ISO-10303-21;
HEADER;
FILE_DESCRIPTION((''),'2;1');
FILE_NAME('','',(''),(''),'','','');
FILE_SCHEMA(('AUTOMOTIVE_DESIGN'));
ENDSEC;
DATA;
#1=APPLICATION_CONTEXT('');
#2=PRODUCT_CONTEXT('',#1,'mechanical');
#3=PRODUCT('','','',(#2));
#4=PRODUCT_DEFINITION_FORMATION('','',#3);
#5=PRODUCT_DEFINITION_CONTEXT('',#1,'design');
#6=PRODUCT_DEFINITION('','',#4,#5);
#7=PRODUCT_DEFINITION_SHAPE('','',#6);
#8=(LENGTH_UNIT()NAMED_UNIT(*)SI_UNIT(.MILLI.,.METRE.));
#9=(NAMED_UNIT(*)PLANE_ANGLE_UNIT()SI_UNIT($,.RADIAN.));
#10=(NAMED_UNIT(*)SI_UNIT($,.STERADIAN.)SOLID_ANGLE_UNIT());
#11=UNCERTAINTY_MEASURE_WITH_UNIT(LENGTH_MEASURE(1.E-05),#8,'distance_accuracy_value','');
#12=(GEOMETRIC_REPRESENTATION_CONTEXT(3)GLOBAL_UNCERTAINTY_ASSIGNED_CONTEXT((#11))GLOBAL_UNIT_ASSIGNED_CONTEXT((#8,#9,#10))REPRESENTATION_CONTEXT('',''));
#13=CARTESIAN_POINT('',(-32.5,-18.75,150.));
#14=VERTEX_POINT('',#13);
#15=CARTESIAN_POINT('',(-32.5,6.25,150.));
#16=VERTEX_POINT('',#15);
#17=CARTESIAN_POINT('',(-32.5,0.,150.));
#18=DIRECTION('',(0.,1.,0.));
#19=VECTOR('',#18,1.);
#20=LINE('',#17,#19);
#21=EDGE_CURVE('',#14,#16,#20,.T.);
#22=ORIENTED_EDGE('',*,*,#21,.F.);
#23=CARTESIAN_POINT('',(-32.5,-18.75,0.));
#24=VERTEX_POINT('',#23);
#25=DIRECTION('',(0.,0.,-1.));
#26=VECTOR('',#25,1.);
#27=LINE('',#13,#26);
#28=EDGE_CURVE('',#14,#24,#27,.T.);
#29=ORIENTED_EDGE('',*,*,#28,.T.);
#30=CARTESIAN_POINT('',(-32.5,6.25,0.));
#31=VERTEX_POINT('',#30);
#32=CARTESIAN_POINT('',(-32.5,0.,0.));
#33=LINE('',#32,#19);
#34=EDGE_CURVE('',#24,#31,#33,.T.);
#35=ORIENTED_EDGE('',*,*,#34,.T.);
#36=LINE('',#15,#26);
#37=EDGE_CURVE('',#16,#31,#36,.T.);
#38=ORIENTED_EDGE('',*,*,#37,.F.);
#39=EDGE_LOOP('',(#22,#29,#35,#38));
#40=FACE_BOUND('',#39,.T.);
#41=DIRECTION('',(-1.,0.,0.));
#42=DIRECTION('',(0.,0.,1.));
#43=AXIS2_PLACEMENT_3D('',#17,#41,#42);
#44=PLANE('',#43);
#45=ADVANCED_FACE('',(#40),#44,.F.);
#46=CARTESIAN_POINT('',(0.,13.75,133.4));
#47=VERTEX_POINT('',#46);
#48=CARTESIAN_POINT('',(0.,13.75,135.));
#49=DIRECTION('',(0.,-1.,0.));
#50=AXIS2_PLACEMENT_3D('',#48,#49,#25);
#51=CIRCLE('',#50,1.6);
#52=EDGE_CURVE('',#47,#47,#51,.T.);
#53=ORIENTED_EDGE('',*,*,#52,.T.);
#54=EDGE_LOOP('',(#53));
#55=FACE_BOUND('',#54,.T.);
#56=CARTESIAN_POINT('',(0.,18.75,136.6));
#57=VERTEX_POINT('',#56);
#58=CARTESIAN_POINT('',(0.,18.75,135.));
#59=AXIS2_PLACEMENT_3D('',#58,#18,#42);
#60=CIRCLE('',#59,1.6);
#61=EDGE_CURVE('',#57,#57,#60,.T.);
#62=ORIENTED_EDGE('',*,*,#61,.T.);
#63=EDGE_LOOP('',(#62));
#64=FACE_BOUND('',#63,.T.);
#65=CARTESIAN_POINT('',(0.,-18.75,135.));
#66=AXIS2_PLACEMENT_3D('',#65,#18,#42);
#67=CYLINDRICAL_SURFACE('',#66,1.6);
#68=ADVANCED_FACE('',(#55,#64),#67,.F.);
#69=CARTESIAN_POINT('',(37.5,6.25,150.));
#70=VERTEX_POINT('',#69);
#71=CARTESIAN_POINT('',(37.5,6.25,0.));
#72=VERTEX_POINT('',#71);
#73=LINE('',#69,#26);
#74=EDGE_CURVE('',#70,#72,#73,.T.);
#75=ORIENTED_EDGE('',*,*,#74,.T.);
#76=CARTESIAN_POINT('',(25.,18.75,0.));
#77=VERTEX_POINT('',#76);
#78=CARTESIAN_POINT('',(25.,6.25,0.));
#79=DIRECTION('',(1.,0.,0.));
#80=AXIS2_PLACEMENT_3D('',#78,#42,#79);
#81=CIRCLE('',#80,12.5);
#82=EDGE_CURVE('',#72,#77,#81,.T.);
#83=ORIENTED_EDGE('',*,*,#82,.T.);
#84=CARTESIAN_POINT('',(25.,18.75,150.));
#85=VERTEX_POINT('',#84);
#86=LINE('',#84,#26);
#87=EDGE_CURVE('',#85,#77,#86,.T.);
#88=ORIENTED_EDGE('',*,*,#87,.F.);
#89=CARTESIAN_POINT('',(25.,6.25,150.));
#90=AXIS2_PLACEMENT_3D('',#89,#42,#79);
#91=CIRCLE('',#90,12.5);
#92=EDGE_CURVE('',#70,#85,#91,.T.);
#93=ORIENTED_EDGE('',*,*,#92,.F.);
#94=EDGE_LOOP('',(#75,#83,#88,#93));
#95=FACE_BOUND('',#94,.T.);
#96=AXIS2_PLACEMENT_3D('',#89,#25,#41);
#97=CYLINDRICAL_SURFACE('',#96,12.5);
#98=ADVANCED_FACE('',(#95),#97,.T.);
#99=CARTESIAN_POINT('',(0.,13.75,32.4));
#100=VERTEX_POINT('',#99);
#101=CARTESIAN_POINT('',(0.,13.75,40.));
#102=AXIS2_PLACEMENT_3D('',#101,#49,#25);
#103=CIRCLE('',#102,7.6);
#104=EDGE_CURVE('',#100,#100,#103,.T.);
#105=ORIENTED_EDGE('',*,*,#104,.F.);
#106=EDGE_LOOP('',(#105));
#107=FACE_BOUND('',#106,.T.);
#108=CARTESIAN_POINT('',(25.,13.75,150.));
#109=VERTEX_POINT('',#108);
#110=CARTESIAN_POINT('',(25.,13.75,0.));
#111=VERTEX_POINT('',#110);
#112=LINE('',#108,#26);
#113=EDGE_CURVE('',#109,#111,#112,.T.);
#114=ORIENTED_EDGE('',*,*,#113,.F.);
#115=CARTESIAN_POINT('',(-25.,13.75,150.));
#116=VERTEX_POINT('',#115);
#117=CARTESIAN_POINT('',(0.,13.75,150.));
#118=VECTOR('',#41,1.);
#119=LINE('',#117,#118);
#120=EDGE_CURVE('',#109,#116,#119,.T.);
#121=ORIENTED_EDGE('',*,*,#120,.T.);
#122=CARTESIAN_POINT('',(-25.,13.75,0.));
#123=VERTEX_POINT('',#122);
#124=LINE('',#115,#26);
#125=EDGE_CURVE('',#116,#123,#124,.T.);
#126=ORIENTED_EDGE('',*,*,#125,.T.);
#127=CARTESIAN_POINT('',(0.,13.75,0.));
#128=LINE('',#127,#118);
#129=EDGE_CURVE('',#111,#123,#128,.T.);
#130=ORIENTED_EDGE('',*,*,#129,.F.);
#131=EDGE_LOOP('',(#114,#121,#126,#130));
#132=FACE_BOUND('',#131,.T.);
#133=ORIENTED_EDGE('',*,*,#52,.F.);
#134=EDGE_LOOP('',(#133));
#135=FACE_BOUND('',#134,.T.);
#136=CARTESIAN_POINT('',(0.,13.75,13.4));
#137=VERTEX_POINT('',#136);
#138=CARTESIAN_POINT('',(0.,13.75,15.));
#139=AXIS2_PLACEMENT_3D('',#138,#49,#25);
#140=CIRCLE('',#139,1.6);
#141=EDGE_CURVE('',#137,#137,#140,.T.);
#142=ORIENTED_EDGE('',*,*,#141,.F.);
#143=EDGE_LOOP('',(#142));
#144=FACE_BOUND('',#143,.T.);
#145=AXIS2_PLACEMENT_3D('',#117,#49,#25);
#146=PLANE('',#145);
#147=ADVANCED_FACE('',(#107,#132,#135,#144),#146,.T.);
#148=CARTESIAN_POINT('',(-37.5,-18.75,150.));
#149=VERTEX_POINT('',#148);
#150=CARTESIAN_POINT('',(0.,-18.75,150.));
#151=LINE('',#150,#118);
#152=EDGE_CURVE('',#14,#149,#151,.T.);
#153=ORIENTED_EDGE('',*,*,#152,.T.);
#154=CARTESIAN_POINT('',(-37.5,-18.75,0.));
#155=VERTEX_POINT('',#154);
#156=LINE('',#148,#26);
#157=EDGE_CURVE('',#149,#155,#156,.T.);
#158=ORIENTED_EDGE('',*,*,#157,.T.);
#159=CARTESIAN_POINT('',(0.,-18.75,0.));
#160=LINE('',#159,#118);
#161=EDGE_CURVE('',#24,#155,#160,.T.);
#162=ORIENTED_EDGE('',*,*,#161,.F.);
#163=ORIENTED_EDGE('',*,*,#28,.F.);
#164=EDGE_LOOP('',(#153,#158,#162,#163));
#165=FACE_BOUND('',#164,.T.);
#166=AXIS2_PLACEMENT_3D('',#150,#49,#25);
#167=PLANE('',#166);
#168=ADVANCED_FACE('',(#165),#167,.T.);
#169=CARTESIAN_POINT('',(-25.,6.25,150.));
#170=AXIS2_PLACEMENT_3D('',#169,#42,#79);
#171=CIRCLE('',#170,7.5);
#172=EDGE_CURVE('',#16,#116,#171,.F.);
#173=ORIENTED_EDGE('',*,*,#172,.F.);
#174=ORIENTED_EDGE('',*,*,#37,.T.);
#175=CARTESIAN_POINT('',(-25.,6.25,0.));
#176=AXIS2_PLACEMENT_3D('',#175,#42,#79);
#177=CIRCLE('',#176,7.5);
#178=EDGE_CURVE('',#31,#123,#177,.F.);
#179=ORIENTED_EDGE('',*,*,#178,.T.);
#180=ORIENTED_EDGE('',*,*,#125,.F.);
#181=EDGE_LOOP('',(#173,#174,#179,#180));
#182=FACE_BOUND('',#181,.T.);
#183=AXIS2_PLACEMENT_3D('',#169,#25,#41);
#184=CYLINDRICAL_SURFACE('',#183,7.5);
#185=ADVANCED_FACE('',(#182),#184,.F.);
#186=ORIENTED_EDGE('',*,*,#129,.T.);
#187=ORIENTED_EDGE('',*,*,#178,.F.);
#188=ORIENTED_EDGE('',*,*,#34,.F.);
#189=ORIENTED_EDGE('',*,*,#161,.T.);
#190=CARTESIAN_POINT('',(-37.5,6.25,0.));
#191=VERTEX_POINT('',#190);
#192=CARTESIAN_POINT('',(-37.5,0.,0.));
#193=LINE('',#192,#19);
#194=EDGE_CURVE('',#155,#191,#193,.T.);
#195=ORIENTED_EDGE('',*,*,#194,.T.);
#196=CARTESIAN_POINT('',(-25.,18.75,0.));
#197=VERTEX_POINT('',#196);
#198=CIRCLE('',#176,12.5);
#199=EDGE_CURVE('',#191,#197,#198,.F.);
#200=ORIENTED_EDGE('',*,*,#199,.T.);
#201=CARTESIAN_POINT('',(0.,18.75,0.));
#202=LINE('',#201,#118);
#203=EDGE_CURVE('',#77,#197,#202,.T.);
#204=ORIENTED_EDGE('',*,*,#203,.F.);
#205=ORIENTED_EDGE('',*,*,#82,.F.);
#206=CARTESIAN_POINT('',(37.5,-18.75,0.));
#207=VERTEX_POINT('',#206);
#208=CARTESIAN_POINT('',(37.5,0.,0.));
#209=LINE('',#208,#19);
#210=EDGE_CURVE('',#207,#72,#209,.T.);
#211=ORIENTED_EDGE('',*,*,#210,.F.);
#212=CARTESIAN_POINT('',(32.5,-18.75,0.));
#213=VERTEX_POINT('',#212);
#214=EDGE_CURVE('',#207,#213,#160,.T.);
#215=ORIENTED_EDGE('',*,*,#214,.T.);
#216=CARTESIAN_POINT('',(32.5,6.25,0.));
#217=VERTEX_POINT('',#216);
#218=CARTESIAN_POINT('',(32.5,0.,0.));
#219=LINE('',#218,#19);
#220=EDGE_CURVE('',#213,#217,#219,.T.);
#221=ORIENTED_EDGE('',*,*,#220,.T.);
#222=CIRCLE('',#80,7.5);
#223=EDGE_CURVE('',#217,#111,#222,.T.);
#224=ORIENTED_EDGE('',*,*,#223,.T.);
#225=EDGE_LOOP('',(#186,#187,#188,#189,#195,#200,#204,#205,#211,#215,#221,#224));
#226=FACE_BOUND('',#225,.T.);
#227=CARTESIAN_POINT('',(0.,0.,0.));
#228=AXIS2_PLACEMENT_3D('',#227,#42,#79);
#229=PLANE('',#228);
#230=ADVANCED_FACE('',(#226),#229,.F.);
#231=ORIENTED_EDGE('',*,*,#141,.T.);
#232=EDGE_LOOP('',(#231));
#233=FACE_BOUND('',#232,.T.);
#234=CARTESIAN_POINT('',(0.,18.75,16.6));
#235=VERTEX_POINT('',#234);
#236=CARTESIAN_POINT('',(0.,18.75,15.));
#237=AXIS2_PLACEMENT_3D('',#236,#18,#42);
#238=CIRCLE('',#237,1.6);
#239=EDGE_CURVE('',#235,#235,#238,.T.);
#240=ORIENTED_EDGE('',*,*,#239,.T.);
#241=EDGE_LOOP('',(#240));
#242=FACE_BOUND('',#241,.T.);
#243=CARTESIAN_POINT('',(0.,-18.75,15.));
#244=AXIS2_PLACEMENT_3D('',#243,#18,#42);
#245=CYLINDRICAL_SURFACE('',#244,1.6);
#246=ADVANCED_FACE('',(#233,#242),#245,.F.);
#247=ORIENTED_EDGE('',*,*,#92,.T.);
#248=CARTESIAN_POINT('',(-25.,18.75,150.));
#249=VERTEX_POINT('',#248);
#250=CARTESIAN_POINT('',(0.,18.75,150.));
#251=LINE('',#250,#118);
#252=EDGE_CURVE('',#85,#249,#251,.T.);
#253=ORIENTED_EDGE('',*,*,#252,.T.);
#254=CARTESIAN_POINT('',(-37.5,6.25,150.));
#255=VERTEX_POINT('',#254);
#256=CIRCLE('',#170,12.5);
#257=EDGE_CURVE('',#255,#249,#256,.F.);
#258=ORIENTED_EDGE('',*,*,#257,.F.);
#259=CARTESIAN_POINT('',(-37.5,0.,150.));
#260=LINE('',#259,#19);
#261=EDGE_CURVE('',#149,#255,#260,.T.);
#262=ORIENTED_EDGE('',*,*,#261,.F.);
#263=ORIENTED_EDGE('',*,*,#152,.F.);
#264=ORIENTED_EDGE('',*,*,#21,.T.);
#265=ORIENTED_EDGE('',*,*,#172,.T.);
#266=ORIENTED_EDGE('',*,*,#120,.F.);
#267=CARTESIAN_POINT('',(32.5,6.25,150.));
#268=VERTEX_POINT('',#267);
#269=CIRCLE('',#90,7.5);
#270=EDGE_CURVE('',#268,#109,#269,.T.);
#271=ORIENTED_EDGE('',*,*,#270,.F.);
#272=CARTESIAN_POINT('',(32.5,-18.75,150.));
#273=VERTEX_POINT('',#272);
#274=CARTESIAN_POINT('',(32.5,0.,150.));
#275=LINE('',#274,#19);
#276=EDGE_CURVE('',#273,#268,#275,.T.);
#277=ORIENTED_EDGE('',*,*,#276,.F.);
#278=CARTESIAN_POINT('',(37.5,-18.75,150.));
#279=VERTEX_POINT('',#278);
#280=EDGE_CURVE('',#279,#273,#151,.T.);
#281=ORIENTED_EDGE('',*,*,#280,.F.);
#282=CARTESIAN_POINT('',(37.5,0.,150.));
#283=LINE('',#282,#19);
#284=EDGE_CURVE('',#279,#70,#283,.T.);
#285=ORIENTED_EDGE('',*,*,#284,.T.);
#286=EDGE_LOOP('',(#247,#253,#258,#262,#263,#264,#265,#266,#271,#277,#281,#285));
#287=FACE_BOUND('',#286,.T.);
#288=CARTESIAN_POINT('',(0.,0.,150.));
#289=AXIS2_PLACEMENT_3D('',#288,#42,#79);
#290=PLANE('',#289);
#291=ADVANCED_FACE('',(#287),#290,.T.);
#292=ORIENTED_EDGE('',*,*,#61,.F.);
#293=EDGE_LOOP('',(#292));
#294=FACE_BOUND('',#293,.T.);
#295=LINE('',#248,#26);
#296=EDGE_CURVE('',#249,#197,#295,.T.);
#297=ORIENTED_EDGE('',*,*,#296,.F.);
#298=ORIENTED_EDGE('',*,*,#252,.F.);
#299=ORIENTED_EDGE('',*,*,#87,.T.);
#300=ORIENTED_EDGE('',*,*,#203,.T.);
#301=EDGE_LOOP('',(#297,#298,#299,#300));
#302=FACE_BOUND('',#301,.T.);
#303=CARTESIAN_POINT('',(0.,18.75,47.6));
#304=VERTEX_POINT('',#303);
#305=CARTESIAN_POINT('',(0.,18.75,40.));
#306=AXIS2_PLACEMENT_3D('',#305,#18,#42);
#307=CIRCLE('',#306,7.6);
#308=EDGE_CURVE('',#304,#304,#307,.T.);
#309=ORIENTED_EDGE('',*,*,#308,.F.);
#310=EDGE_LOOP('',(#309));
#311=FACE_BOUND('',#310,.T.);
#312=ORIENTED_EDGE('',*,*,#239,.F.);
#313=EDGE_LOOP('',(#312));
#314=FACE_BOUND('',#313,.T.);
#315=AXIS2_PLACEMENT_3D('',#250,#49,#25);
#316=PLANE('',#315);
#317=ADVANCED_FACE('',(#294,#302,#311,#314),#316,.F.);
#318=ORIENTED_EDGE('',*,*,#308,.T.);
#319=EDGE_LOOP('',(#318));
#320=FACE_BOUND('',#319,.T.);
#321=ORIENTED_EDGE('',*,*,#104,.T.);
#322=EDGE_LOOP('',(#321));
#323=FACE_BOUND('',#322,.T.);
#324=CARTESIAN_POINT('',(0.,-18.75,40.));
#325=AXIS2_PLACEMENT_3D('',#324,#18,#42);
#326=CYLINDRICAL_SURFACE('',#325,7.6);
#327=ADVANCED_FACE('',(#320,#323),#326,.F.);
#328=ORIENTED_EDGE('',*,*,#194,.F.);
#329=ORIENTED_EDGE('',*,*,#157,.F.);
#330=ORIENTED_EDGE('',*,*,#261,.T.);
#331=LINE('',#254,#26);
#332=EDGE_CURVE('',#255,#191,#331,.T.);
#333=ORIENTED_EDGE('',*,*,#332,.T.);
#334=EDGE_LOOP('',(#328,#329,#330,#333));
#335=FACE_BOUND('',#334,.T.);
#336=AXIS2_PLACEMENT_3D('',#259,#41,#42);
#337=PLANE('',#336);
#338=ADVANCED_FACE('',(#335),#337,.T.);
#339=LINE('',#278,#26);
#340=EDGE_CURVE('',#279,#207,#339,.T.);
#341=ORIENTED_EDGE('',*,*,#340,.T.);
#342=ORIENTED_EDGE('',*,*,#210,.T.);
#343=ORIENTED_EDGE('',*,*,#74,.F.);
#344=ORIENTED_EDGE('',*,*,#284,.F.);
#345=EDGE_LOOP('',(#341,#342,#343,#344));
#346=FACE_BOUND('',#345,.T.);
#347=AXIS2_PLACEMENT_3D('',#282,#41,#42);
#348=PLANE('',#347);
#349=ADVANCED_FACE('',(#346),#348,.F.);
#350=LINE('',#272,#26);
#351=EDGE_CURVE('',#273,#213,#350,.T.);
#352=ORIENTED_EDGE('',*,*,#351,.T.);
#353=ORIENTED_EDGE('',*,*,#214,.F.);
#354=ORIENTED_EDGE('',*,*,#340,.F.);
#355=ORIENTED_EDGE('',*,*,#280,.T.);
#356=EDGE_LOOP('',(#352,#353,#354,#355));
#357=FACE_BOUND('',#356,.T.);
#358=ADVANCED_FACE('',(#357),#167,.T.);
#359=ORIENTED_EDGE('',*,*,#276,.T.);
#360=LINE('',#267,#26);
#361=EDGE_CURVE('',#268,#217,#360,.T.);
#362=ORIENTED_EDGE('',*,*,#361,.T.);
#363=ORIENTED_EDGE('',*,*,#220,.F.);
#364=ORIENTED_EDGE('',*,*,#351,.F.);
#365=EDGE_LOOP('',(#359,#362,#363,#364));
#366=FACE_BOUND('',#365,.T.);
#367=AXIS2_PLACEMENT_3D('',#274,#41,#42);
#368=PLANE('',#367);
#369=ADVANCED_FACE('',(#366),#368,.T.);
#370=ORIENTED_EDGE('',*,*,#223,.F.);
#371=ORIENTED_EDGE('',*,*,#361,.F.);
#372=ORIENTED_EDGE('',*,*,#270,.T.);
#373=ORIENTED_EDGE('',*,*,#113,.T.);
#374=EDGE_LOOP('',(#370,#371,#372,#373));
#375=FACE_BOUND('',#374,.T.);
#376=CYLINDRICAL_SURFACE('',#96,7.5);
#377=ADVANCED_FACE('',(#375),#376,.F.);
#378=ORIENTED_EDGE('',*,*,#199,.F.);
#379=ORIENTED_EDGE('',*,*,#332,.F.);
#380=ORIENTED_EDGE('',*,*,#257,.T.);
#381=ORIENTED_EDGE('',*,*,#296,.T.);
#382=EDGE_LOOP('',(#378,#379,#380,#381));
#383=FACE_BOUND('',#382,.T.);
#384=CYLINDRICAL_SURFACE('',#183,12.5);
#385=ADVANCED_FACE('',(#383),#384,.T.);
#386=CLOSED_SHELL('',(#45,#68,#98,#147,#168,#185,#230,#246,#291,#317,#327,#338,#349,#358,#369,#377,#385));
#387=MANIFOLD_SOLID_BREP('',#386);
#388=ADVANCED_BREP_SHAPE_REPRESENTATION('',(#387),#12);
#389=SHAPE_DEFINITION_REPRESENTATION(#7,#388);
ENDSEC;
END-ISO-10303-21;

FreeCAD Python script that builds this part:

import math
import FreeCAD as App
import Part
import Sketcher
from FreeCAD import Vector

doc = App.newDocument("Part")
body = doc.addObject("PartDesign::Body", "Body")

# Sketch on XY plane
sketch1 = body.newObject("Sketcher::SketchObject", "Sketch")
sketch1.AttachmentSupport = (doc.getObject("XY_Plane"), [""])
sketch1.MapMode = "FlatFace"
sketch1.addGeometry([
    Part.LineSegment(Vector(-37.5, -18.75, 0), Vector(-32.5, -18.75, 0)),  # 0
    Part.LineSegment(Vector(-32.5, -18.75, 0), Vector(-32.5, 6.25, 0)),  # 1
    Part.ArcOfCircle(Part.Circle(Vector(-25, 6.25, 0), Vector(0, 0, 1), 7.5), math.radians(90), math.radians(180)),  # 2
    Part.LineSegment(Vector(-25, 13.75, 0), Vector(25, 13.75, 0)),  # 3
    Part.ArcOfCircle(Part.Circle(Vector(25, 6.25, 0), Vector(0, 0, 1), 7.5), math.radians(0), math.radians(90)),  # 4
    Part.LineSegment(Vector(32.5, 6.25, 0), Vector(32.5, -18.75, 0)),  # 5
    Part.LineSegment(Vector(32.5, -18.75, 0), Vector(37.5, -18.75, 0)),  # 6
    Part.LineSegment(Vector(37.5, -18.75, 0), Vector(37.5, 6.25, 0)),  # 7
    Part.ArcOfCircle(Part.Circle(Vector(25, 6.25, 0), Vector(0, 0, 1), 12.5), math.radians(0), math.radians(90)),  # 8
    Part.LineSegment(Vector(25, 18.75, 0), Vector(-25, 18.75, 0)),  # 9
    Part.ArcOfCircle(Part.Circle(Vector(-25, 6.25, 0), Vector(0, 0, 1), 12.5), math.radians(90), math.radians(180)),  # 10
    Part.LineSegment(Vector(-37.5, 6.25, 0), Vector(-37.5, -18.75, 0)),  # 11
], False)
sketch1.addConstraint([
    Sketcher.Constraint("Coincident", 0, 2, 1, 1),
    Sketcher.Constraint("Tangent", 1, 2, 2, 2),
    Sketcher.Constraint("Tangent", 2, 1, 3, 1),
    Sketcher.Constraint("Tangent", 3, 2, 4, 2),
    Sketcher.Constraint("Tangent", 4, 1, 5, 1),
    Sketcher.Constraint("Coincident", 5, 2, 6, 1),
    Sketcher.Constraint("Coincident", 6, 2, 7, 1),
    Sketcher.Constraint("Tangent", 7, 2, 8, 1),
    Sketcher.Constraint("Tangent", 8, 2, 9, 1),
    Sketcher.Constraint("Tangent", 9, 2, 10, 1),
    Sketcher.Constraint("Tangent", 10, 2, 11, 1),
    Sketcher.Constraint("Coincident", 11, 2, 0, 1),
    Sketcher.Constraint("Horizontal", 0),
    Sketcher.Constraint("Vertical", 1),
    Sketcher.Constraint("Horizontal", 3),
    Sketcher.Constraint("Vertical", 5),
    Sketcher.Constraint("Horizontal", 6),
    Sketcher.Constraint("Vertical", 7),
    Sketcher.Constraint("Horizontal", 9),
    Sketcher.Constraint("Vertical", 11),
    Sketcher.Constraint("Coincident", 8, 3, 4, 3),
    Sketcher.Constraint("Coincident", 10, 3, 2, 3),
    Sketcher.Constraint("Equal", 2, 4),
    Sketcher.Constraint("Symmetric", 0, 2, 5, 2, -2),
    Sketcher.Constraint("Radius", 2, 7.5),
    Sketcher.Constraint("Radius", 8, 12.5),
    Sketcher.Constraint("DistanceX", 3, 1, 3, 2, 50.0),
    Sketcher.Constraint("DistanceY", 1, 1, 1, 2, 25.0),
    Sketcher.Constraint("DistanceY", -1, 1, 2, 3, 6.25),
])
pad1 = body.newObject("PartDesign::Pad", "Pad")
pad1.Profile = sketch1
pad1.Length = 150

# Sketch on XZ plane
sketch2 = body.newObject("Sketcher::SketchObject", "Sketch001")
sketch2.AttachmentSupport = (doc.getObject("XZ_Plane"), [""])
sketch2.MapMode = "FlatFace"
sketch2.AttachmentOffset = App.Placement(Vector(0, 0, -18.75), App.Rotation())
sketch2.addGeometry([
    Part.Circle(Vector(0, 135, 0), Vector(0, 0, 1), 1.6),
    Part.Circle(Vector(0, 15, 0), Vector(0, 0, 1), 1.6),
], False)
sketch2.addConstraint([
    Sketcher.Constraint("Equal", 0, 1),
    Sketcher.Constraint("PointOnObject", 0, 3, -2),
    Sketcher.Constraint("PointOnObject", 1, 3, -2),
    Sketcher.Constraint("Diameter", 0, 3.2),
    Sketcher.Constraint("DistanceY", -1, 1, 0, 3, 135.0),
    Sketcher.Constraint("DistanceY", -1, 1, 1, 3, 15.0),
])
pocket1 = body.newObject("PartDesign::Pocket", "Pocket")
pocket1.Profile = sketch2
pocket1.Type = "ThroughAll"
pocket1.Reversed = True

# Sketch on XZ plane
sketch3 = body.newObject("Sketcher::SketchObject", "Sketch002")
sketch3.AttachmentSupport = (doc.getObject("XZ_Plane"), [""])
sketch3.MapMode = "FlatFace"
sketch3.AttachmentOffset = App.Placement(Vector(0, 0, -18.75), App.Rotation())
sketch3.addGeometry(Part.Circle(Vector(0, 40, 0), Vector(0, 0, 1), 7.6), False)
sketch3.addConstraint([
    Sketcher.Constraint("PointOnObject", 0, 3, -2),
    Sketcher.Constraint("Diameter", 0, 15.2),
    Sketcher.Constraint("DistanceY", -1, 1, 0, 3, 40.0),
])
pocket2 = body.newObject("PartDesign::Pocket", "Pocket001")
pocket2.Profile = sketch3
pocket2.Type = "ThroughAll"
pocket2.Reversed = True

doc.recompute()
